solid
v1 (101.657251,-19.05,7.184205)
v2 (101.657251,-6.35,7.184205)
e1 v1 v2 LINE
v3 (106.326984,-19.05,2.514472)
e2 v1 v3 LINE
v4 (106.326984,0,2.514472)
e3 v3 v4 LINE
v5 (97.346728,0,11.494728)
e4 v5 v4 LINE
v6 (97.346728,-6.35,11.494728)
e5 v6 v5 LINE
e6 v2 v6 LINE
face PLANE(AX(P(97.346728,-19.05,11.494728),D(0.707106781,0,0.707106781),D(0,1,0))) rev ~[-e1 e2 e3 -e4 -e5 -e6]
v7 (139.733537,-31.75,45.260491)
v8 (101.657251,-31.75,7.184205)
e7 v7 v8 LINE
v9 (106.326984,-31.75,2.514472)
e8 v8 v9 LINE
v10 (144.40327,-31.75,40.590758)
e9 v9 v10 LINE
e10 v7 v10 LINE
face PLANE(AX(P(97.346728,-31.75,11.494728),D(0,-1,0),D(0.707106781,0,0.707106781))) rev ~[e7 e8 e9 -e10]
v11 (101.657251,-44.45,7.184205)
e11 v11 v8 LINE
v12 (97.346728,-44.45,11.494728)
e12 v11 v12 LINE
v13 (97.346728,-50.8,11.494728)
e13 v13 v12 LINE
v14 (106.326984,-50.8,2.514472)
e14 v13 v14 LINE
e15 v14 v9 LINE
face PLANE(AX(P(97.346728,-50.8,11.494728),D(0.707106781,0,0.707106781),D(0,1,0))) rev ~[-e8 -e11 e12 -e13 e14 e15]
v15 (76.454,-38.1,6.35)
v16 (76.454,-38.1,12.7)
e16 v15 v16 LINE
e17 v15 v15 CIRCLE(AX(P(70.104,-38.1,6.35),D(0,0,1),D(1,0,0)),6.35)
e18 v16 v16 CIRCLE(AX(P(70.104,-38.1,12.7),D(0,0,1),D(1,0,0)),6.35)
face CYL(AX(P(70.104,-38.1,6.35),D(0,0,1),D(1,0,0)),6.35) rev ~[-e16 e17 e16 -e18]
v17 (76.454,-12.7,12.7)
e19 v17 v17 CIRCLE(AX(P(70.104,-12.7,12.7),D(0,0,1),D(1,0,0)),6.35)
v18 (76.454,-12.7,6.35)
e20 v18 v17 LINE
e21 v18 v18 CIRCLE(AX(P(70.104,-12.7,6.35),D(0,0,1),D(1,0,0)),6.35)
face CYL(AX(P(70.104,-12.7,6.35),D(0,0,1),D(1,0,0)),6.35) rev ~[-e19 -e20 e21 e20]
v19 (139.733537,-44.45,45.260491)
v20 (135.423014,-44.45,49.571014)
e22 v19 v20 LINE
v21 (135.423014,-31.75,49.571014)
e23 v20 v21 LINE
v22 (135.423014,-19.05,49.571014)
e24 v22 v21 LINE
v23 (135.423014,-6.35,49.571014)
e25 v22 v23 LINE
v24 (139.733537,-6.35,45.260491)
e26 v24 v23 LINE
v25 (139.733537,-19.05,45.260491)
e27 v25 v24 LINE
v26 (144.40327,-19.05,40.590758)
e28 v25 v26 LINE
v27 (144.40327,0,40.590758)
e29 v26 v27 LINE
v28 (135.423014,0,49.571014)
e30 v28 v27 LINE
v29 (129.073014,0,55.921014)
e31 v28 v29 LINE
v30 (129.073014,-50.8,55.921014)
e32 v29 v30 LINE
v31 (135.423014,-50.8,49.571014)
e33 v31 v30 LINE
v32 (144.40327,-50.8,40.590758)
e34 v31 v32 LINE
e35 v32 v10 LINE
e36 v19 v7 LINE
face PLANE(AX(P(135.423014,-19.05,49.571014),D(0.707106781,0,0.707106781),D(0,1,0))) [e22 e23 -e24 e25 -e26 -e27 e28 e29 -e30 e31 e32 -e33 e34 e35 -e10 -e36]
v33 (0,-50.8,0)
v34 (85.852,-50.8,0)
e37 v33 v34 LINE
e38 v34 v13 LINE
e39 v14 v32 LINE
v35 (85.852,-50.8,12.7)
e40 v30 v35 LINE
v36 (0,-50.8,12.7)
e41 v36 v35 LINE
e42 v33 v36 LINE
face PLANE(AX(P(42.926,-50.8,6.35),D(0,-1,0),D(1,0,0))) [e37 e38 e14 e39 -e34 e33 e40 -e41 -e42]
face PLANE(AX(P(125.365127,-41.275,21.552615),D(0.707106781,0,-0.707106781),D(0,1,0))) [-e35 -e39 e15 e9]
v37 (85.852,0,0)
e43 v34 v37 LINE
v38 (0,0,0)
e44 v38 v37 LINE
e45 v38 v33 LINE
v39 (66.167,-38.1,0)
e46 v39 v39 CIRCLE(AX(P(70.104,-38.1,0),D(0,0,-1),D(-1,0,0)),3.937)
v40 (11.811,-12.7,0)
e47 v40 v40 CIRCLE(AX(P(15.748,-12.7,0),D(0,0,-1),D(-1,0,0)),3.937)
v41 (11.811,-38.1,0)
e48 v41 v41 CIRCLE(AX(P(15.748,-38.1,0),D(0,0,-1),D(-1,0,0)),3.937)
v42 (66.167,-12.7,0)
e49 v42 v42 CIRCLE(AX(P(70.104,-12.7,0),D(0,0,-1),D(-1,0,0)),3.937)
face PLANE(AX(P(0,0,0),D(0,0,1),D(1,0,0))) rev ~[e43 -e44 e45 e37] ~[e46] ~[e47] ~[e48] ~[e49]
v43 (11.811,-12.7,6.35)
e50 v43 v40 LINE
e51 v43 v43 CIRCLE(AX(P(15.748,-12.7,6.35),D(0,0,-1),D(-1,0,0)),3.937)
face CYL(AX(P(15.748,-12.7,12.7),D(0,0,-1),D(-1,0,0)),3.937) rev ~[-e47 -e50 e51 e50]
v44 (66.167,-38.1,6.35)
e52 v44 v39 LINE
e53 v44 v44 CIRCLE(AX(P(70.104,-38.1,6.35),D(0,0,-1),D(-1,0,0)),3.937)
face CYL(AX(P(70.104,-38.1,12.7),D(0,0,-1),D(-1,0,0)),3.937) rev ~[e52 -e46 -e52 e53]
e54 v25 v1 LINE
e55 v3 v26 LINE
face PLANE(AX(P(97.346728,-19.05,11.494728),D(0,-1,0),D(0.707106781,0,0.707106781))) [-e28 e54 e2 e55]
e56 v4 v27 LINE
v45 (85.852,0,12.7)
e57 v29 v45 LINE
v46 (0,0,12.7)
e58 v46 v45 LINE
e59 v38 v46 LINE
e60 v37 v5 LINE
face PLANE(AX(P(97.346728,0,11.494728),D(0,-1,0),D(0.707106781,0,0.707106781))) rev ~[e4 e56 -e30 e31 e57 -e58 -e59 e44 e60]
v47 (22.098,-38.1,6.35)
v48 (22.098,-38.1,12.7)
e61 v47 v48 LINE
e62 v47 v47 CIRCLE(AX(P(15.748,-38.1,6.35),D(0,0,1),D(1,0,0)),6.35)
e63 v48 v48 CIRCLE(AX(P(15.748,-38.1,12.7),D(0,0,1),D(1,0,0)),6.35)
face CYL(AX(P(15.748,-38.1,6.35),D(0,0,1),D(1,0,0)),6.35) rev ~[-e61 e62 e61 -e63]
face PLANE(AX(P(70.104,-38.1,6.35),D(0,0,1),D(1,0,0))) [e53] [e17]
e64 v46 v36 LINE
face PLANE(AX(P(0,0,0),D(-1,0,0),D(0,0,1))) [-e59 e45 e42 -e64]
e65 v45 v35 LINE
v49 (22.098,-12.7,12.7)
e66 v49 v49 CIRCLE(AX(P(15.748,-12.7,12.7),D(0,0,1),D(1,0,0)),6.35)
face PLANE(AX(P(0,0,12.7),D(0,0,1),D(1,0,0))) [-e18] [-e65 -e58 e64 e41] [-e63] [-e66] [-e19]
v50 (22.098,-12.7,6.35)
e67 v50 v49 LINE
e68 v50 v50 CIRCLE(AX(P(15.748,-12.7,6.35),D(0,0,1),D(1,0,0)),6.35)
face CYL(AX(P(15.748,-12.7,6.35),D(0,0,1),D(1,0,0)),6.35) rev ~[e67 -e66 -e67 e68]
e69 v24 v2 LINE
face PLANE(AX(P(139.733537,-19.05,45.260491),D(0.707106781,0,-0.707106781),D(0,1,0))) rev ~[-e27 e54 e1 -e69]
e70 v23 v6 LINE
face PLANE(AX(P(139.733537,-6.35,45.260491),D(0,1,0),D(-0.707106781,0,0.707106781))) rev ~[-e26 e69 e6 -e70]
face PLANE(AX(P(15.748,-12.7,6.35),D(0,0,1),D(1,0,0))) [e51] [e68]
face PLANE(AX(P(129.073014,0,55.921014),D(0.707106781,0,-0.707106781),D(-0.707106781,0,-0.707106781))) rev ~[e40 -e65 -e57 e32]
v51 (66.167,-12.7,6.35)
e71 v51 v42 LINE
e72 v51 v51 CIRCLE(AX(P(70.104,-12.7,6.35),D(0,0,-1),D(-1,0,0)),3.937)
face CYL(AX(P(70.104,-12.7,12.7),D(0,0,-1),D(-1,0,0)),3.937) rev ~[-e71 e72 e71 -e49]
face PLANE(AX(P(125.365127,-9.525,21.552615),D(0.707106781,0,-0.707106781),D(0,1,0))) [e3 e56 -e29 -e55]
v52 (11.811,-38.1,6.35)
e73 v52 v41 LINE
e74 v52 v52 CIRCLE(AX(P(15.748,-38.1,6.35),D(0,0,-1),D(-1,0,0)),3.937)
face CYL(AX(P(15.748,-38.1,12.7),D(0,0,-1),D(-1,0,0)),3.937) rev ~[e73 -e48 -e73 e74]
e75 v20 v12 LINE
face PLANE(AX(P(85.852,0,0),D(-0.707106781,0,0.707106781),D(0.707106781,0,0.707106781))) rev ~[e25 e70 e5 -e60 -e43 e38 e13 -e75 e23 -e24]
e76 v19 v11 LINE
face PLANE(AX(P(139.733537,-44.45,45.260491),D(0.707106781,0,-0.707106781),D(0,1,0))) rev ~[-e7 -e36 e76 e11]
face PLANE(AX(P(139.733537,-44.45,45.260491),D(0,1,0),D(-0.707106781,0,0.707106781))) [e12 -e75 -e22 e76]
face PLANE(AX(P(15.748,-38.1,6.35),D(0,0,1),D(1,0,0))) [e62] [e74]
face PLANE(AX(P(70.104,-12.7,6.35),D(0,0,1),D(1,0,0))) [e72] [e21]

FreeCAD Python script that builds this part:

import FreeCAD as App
import Part
import Sketcher
Q = App.Units.Quantity

doc = App.newDocument("Part")
body = doc.addObject("PartDesign::Body", "Body")

sketch1 = body.newObject("Sketcher::SketchObject", "Sketch")
sketch1.AttachmentSupport = (doc.getObject("XZ_Plane"), [""])
sketch1.MapMode = "FlatFace"
sketch1.addGeometry([
    Part.LineSegment(App.Vector(0, 12.7, 0), App.Vector(0, 0, 0)),
    Part.LineSegment(App.Vector(0, 0, 0), App.Vector(85.852, 0, 0)),
    Part.LineSegment(App.Vector(85.852, 0, 0), App.Vector(135.423014, 49.571014, 0)),
    Part.LineSegment(App.Vector(135.423014, 49.571014, 0), App.Vector(129.073014, 55.921014, 0)),
    Part.LineSegment(App.Vector(129.073014, 55.921014, 0), App.Vector(85.852, 12.7, 0)),
    Part.LineSegment(App.Vector(85.852, 12.7, 0), App.Vector(0, 12.7, 0)),
], False)
sketch1.addConstraint([
    Sketcher.Constraint("Coincident", 0, 2, 1, 1),
    Sketcher.Constraint("Coincident", 1, 2, 2, 1),
    Sketcher.Constraint("Coincident", 2, 2, 3, 1),
    Sketcher.Constraint("Coincident", 3, 2, 4, 1),
    Sketcher.Constraint("Coincident", 4, 2, 5, 1),
    Sketcher.Constraint("Coincident", 5, 2, 0, 1),
    Sketcher.Constraint("Vertical", 0),
    Sketcher.Constraint("Horizontal", 1),
    Sketcher.Constraint("Horizontal", 5),
    Sketcher.Constraint("Coincident", 0, 2, -1, 1),
    Sketcher.Constraint("Perpendicular", 2, 3),
    Sketcher.Constraint("Perpendicular", 3, 4),
    Sketcher.Constraint("Vertical", 1, 2, 4, 2),
    Sketcher.Constraint("DistanceY", 0, 2, 0, 1, Q("0.5 in")),
    Sketcher.Constraint("Angle", 2, Q("45 deg")),
    Sketcher.Constraint("DistanceX", 1, 1, 1, 2, Q("3.38 in")),
    Sketcher.Constraint("Distance", 2, Q("2.76 in")),
])
pad1 = body.newObject("PartDesign::Pad", "Pad")
pad1.Profile = sketch1
pad1.Length = Q("2 in")

sketch2 = body.newObject("Sketcher::SketchObject", "Sketch001")
sketch2.AttachmentSupport = (doc.getObject("XY_Plane"), [""])
sketch2.MapMode = "FlatFace"
sketch2.AttachmentOffset = App.Placement(App.Vector(0, 0, 0.5 * 25.4), App.Rotation())
sketch2.addGeometry([
    Part.Circle(App.Vector(15.748, -12.7, 0), App.Vector(0, 0, 1), 3.937),
    Part.Circle(App.Vector(15.748, -38.1, 0), App.Vector(0, 0, 1), 3.937),
    Part.Circle(App.Vector(70.104, -38.1, 0), App.Vector(0, 0, 1), 3.937),
    Part.Circle(App.Vector(70.104, -12.7, 0), App.Vector(0, 0, 1), 3.937),
], False)
sketch2.addConstraint([
    Sketcher.Constraint("Equal", 0, 1),
    Sketcher.Constraint("Equal", 1, 2),
    Sketcher.Constraint("Equal", 2, 3),
    Sketcher.Constraint("Horizontal", 1, 3, 2, 3),
    Sketcher.Constraint("Horizontal", 0, 3, 3, 3),
    Sketcher.Constraint("Vertical", 0, 3, 1, 3),
    Sketcher.Constraint("Vertical", 2, 3, 3, 3),
    Sketcher.Constraint("Diameter", 0, Q("0.31 in")),
    Sketcher.Constraint("DistanceY", 1, 3, 0, 3, Q("1 in")),
    Sketcher.Constraint("DistanceY", 0, 3, -1, 1, Q("0.5 in")),
    Sketcher.Constraint("DistanceX", -1, 1, 0, 3, Q("0.62 in")),
    Sketcher.Constraint("DistanceX", -1, 1, 2, 3, Q("2.76 in")),
])
doc.recompute()
hole = body.newObject("PartDesign::Hole", "Hole")
hole.Profile = sketch2
hole.ThreadType = "None"
hole.Diameter = Q("0.31 in")
hole.DepthType = "ThroughAll"
hole.HoleCutType = "Counterbore"
hole.HoleCutDiameter = Q("0.5 in")
hole.HoleCutDepth = Q("0.25 in")

sketch3 = body.newObject("Sketcher::SketchObject", "Sketch002")
sketch3.AttachmentSupport = (doc.getObject("XZ_Plane"), [""])
sketch3.MapMode = "FlatFace"
sketch3.addGeometry([
    Part.LineSegment(App.Vector(85.852, 12.7, 0), App.Vector(85.852, 0, 0)),
    Part.LineSegment(App.Vector(85.852, 0, 0), App.Vector(135.423014, 49.571014, 0)),
    Part.LineSegment(App.Vector(135.423014, 49.571014, 0), App.Vector(129.073014, 55.921014, 0)),
    Part.LineSegment(App.Vector(129.073014, 55.921014, 0), App.Vector(85.852, 12.7, 0)),
], False)
sketch3.addConstraint([
    Sketcher.Constraint("Coincident", 0, 2, 1, 1),
    Sketcher.Constraint("Coincident", 1, 2, 2, 1),
    Sketcher.Constraint("Coincident", 2, 2, 3, 1),
    Sketcher.Constraint("Coincident", 3, 2, 0, 1),
    Sketcher.Constraint("Vertical", 0),
    Sketcher.Constraint("PointOnObject", 0, 2, -1),
    Sketcher.Constraint("Perpendicular", 1, 2),
    Sketcher.Constraint("Perpendicular", 2, 3),
    Sketcher.Constraint("DistanceY", 0, 2, 0, 1, Q("0.5 in")),
    Sketcher.Constraint("Angle", 1, Q("45 deg")),
    Sketcher.Constraint("Distance", 1, Q("2.76 in")),
    Sketcher.Constraint("DistanceX", -1, 1, 0, 2, Q("3.38 in")),
])
pad2 = body.newObject("PartDesign::Pad", "Pad001")
pad2.Profile = sketch3
pad2.Length = Q("1 in")

sketch4 = body.newObject("Sketcher::SketchObject", "Sketch003")
sketch4.Placement = App.Placement(App.Vector(42.926, 0, -42.926), App.Rotation(App.Vector(0, 1, 0), App.Vector(0.707106781, 0, 0.707106781), App.Vector(0.707106781, 0, -0.707106781), "ZXY"))
sketch4.addGeometry([
    Part.LineSegment(App.Vector(-19.05, 130.810531, 0), App.Vector(-19.05, 76.962531, 0)),
    Part.LineSegment(App.Vector(-19.05, 76.962531, 0), App.Vector(0, 76.962531, 0)),
    Part.LineSegment(App.Vector(0, 76.962531, 0), App.Vector(0, 130.810531, 0)),
    Part.LineSegment(App.Vector(0, 130.810531, 0), App.Vector(-19.05, 130.810531, 0)),
    Part.LineSegment(App.Vector(-50.8, 130.810531, 0), App.Vector(-50.8, 76.962531, 0)),
    Part.LineSegment(App.Vector(-50.8, 76.962531, 0), App.Vector(-31.75, 76.962531, 0)),
    Part.LineSegment(App.Vector(-31.75, 76.962531, 0), App.Vector(-31.75, 130.810531, 0)),
    Part.LineSegment(App.Vector(-31.75, 130.810531, 0), App.Vector(-50.8, 130.810531, 0)),
], False)
sketch4.addConstraint([
    Sketcher.Constraint("Coincident", 0, 2, 1, 1),
    Sketcher.Constraint("Coincident", 1, 2, 2, 1),
    Sketcher.Constraint("Coincident", 2, 2, 3, 1),
    Sketcher.Constraint("Coincident", 3, 2, 0, 1),
    Sketcher.Constraint("Coincident", 4, 2, 5, 1),
    Sketcher.Constraint("Coincident", 5, 2, 6, 1),
    Sketcher.Constraint("Coincident", 6, 2, 7, 1),
    Sketcher.Constraint("Coincident", 7, 2, 4, 1),
    Sketcher.Constraint("Vertical", 0),
    Sketcher.Constraint("Horizontal", 1),
    Sketcher.Constraint("Vertical", 2),
    Sketcher.Constraint("Horizontal", 3),
    Sketcher.Constraint("Vertical", 4),
    Sketcher.Constraint("Horizontal", 5),
    Sketcher.Constraint("Vertical", 6),
    Sketcher.Constraint("Horizontal", 7),
    Sketcher.Constraint("PointOnObject", 1, 2, -2),
    Sketcher.Constraint("Horizontal", 1, 2, 4, 2),
    Sketcher.Constraint("Horizontal", 3, 2, 6, 2),
    Sketcher.Constraint("Equal", 3, 5),
    Sketcher.Constraint("DistanceX", 4, 2, -1, 1, Q("2 in")),
    Sketcher.Constraint("DistanceX", 1, 1, 1, 2, Q("0.75 in")),
    Sketcher.Constraint("DistanceY", 0, 2, 0, 1, Q("2.12 in")),
    Sketcher.Constraint("DistanceY", -1, 1, 0, 2, Q("76.962531 mm")),
])
pad3 = body.newObject("PartDesign::Pad", "Pad002")
pad3.Profile = sketch4
pad3.Length = Q("0.5 in")

sketch5 = body.newObject("Sketcher::SketchObject", "Sketch004")
sketch5.Placement = App.Placement(App.Vector(92.497014, 0, 92.497014), App.Rotation(App.Vector(0, 1, 0), App.Vector(-0.707106781, 0, 0.707106781), App.Vector(0.707106781, 0, 0.707106781), "ZXY"))
sketch5.addGeometry([
    Part.LineSegment(App.Vector(-19.05, -60.706531, 0), App.Vector(-19.05, -66.802531, 0)),
    Part.LineSegment(App.Vector(-19.05, -66.802531, 0), App.Vector(-6.35, -66.802531, 0)),
    Part.LineSegment(App.Vector(-6.35, -66.802531, 0), App.Vector(-6.35, -60.706531, 0)),
    Part.LineSegment(App.Vector(-6.35, -60.706531, 0), App.Vector(-19.05, -60.706531, 0)),
    Part.LineSegment(App.Vector(-44.45, -60.706531, 0), App.Vector(-44.45, -66.802531, 0)),
    Part.LineSegment(App.Vector(-44.45, -66.802531, 0), App.Vector(-31.75, -66.802531, 0)),
    Part.LineSegment(App.Vector(-31.75, -66.802531, 0), App.Vector(-31.75, -60.706531, 0)),
    Part.LineSegment(App.Vector(-31.75, -60.706531, 0), App.Vector(-44.45, -60.706531, 0)),
], False)
sketch5.addConstraint([
    Sketcher.Constraint("Coincident", 0, 2, 1, 1),
    Sketcher.Constraint("Coincident", 1, 2, 2, 1),
    Sketcher.Constraint("Coincident", 2, 2, 3, 1),
    Sketcher.Constraint("Coincident", 3, 2, 0, 1),
    Sketcher.Constraint("Coincident", 4, 2, 5, 1),
    Sketcher.Constraint("Coincident", 5, 2, 6, 1),
    Sketcher.Constraint("Coincident", 6, 2, 7, 1),
    Sketcher.Constraint("Coincident", 7, 2, 4, 1),
    Sketcher.Constraint("Vertical", 0),
    Sketcher.Constraint("Horizontal", 1),
    Sketcher.Constraint("Vertical", 2),
    Sketcher.Constraint("Horizontal", 3),
    Sketcher.Constraint("Vertical", 4),
    Sketcher.Constraint("Horizontal", 5),
    Sketcher.Constraint("Vertical", 6),
    Sketcher.Constraint("Horizontal", 7),
    Sketcher.Constraint("Horizontal", 1, 2, 4, 2),
    Sketcher.Constraint("Horizontal", 3, 2, 6, 2),
    Sketcher.Constraint("Equal", 3, 5),
    Sketcher.Constraint("DistanceX", 1, 1, 1, 2, Q("0.5 in")),
    Sketcher.Constraint("DistanceX", 4, 2, 0, 2, Q("1 in")),
    Sketcher.Constraint("DistanceY", 0, 2, 0, 1, Q("0.24 in")),
    Sketcher.Constraint("DistanceX", 0, 2, -1, 1, Q("0.75 in")),
    Sketcher.Constraint("DistanceY", 0, 2, -1, 1, Q("66.802531 mm")),
])
pocket1 = body.newObject("PartDesign::Pocket", "Pocket")
pocket1.Profile = sketch5
pocket1.Length = Q("2.12 in")

doc.recompute()
